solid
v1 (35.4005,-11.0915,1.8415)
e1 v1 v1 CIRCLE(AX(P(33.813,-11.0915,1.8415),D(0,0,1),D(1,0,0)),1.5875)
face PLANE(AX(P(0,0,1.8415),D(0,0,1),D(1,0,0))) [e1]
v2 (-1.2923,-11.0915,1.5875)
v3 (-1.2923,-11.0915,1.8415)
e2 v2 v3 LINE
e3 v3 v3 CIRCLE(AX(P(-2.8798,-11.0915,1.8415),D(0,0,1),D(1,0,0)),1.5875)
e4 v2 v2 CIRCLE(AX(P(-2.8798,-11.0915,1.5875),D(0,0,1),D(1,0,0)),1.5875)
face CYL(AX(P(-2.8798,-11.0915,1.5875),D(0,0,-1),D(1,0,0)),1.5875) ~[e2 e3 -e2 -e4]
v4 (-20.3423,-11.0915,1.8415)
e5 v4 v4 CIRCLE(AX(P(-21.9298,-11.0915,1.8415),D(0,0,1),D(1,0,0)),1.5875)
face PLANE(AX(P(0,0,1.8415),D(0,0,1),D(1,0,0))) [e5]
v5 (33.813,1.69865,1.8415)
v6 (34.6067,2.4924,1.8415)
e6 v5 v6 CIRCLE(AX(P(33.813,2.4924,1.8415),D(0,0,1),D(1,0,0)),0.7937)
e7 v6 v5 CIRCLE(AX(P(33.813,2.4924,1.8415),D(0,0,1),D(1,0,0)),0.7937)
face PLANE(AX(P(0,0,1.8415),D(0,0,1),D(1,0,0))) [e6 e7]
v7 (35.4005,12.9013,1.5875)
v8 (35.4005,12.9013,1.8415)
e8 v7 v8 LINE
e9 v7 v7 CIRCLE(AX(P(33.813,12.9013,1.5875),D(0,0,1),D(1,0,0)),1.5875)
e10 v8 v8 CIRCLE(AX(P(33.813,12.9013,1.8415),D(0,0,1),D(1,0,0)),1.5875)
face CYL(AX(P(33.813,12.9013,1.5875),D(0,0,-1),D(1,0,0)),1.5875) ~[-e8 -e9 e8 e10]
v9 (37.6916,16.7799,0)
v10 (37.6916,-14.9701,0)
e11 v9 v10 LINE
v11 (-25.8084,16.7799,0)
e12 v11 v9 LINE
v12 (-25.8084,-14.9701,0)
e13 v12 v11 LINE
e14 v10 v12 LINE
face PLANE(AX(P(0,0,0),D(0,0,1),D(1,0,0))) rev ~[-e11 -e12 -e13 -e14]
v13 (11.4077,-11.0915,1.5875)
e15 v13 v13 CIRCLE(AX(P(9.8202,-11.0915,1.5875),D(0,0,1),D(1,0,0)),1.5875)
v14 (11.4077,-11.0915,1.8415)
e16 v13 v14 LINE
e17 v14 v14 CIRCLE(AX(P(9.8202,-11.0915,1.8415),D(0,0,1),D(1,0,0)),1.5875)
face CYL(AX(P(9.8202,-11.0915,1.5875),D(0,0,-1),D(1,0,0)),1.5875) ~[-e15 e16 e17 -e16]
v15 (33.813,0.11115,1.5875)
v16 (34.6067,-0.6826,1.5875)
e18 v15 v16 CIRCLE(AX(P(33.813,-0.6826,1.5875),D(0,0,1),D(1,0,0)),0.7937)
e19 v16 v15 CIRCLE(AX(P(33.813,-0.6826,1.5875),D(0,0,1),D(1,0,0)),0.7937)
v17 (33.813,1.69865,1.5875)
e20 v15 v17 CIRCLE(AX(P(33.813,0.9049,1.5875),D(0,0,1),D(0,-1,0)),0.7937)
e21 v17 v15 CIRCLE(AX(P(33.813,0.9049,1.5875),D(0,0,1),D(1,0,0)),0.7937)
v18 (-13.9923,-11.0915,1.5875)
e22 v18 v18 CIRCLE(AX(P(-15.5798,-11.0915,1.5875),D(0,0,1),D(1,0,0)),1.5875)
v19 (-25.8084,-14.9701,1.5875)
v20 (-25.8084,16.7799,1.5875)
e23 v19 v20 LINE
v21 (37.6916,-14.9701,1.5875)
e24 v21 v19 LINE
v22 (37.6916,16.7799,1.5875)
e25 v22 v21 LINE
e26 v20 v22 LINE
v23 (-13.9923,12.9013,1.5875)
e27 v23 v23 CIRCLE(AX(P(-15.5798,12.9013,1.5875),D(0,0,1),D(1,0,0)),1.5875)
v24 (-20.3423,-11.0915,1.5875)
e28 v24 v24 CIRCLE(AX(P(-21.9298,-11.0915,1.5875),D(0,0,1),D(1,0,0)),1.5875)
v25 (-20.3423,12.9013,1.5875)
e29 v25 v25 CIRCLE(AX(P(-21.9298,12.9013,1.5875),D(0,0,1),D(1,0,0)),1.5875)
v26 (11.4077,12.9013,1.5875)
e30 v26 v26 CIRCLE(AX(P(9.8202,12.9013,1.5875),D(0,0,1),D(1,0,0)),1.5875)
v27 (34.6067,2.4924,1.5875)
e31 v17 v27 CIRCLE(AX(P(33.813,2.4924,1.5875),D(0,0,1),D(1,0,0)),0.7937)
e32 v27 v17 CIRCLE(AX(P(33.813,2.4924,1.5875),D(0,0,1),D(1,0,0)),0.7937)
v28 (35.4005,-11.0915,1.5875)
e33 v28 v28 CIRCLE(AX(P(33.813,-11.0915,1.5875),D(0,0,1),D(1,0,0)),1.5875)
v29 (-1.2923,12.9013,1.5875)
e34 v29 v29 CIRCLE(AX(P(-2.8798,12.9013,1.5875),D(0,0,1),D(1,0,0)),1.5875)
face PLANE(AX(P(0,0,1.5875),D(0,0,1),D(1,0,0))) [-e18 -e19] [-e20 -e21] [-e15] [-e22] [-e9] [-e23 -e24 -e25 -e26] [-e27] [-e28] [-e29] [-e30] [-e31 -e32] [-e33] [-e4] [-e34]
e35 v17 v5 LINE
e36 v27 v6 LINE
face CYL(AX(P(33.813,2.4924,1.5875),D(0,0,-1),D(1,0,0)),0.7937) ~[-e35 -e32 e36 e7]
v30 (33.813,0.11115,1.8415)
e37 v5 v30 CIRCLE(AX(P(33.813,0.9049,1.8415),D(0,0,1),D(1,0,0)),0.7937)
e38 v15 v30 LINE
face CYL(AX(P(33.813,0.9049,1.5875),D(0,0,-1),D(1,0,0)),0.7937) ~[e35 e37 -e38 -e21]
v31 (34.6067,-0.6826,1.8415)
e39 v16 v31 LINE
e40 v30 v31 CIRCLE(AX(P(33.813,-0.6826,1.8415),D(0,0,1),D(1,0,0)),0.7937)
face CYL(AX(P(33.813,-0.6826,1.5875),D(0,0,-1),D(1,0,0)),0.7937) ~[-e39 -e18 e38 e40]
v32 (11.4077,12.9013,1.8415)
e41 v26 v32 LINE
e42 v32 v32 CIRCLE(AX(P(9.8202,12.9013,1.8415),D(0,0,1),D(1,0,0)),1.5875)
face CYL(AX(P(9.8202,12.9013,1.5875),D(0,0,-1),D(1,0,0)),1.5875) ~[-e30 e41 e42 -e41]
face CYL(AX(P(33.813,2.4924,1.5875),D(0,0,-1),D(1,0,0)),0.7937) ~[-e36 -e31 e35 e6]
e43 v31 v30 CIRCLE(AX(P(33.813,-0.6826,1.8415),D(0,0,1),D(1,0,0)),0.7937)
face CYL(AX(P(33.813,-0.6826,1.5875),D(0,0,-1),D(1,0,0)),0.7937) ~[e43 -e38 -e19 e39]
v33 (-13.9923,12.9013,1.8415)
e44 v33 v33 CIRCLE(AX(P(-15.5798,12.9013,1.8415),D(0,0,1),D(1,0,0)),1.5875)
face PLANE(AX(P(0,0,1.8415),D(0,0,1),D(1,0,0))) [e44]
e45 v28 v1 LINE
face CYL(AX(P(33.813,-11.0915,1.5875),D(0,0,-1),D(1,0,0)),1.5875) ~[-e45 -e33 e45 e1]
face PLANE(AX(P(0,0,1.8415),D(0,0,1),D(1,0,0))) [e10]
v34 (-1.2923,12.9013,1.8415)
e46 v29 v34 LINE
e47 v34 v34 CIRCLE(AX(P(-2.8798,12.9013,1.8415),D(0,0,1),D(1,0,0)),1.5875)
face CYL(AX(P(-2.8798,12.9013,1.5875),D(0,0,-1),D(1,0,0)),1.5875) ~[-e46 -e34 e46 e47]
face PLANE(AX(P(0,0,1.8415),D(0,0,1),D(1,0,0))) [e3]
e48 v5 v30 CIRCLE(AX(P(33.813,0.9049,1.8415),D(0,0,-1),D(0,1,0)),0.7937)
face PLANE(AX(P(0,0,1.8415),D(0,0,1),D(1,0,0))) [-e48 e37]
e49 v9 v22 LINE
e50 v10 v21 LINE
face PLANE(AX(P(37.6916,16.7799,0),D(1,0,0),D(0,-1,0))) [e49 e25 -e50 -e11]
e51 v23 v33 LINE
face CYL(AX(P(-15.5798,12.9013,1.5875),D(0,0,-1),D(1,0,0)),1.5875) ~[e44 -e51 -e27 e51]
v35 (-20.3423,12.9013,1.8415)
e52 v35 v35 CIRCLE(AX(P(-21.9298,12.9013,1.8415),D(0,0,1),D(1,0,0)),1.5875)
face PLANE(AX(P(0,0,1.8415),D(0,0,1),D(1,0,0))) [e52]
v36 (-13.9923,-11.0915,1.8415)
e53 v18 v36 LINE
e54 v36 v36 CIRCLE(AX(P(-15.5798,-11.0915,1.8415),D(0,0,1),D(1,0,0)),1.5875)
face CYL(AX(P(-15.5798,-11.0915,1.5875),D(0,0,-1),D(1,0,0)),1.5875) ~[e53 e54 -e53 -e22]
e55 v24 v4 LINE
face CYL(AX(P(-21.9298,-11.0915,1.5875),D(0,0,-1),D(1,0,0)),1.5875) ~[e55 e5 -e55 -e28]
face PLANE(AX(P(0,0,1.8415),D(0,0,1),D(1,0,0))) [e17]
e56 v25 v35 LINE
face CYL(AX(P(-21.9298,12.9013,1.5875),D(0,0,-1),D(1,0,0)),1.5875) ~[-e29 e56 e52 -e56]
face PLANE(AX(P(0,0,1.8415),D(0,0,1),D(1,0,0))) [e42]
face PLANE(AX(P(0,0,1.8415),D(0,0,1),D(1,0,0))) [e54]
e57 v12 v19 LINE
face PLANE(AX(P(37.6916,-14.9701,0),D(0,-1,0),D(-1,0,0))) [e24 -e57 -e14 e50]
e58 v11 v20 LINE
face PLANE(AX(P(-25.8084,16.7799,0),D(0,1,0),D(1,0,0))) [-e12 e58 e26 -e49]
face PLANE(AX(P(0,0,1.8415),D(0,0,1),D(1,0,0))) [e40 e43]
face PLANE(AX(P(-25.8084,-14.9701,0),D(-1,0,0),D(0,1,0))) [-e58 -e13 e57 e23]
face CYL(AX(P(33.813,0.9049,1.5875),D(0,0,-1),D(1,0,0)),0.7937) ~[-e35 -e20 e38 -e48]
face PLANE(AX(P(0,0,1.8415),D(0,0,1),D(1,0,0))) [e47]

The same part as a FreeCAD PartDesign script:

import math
import FreeCAD as App
import Part
import Sketcher
Q = App.Units.Quantity


def add_polygon(sketch, points):
    """Adds a closed chain of lines whose ends are joined by coincident constraints."""
    first, n = sketch.GeometryCount, len(points)
    for a, b in zip(points, points[1:] + points[:1]):
        sketch.addGeometry(Part.LineSegment(App.Vector(*a, 0), App.Vector(*b, 0)), False)
    for i in range(n):
        sketch.addConstraint(Sketcher.Constraint("Coincident", first + i, 2, first + (i + 1) % n, 1))

doc = App.newDocument("Part")
body = doc.addObject("PartDesign::Body", "Body")

# Sketch on XY plane
sketch1 = body.newObject("Sketcher::SketchObject", "Sketch")
sketch1.AttachmentSupport = (doc.getObject("XY_Plane"), [""])
sketch1.MapMode = "FlatFace"
add_polygon(sketch1, [(38, 17), (-26, 17), (-26, -15), (38, -15)])  # lines 0-3
sketch1.addConstraint([
    Sketcher.Constraint("Horizontal", 0),
    Sketcher.Constraint("Vertical", 1),
    Sketcher.Constraint("Horizontal", 2),
    Sketcher.Constraint("Vertical", 3),
    Sketcher.Constraint("DistanceX", 0, 2, 0, 1, Q("2.5 in")),
    Sketcher.Constraint("DistanceY", 1, 2, 1, 1, Q("1.25 in")),
    Sketcher.Constraint("DistanceX", 0, 2, -1, 1, Q("25.8084 mm")),
    Sketcher.Constraint("DistanceY", -1, 1, 0, 2, Q("16.78 mm")),
])
pad1 = body.newObject("PartDesign::Pad", "Pad")
pad1.Profile = sketch1
pad1.Length = Q("0.0625 in")

# Sketch on XY plane
sketch2 = body.newObject("Sketcher::SketchObject", "Sketch001")
sketch2.AttachmentSupport = (doc.getObject("XY_Plane"), [""])
sketch2.MapMode = "FlatFace"
sketch2.AttachmentOffset = App.Placement(App.Vector(0, 0, 0.0625 * 25.4), App.Rotation())
sketch2.addGeometry([
    Part.Circle(App.Vector(33.8, 12.9, 0), App.Vector(0, 0, 1), 1.6),  # 0
    Part.Circle(App.Vector(33.8, -11.1, 0), App.Vector(0, 0, 1), 1.6),  # 1
    Part.Circle(App.Vector(33.8, 2.5, 0), App.Vector(0, 0, 1), 0.8),  # 2
    Part.Circle(App.Vector(33.8, -0.7, 0), App.Vector(0, 0, 1), 0.8),  # 3
    Part.ArcOfCircle(Part.Circle(App.Vector(33.8, 0.9, 0), App.Vector(0, 0, 1), 0.8), math.radians(-90), math.radians(90)),  # 4
    Part.ArcOfCircle(Part.Circle(App.Vector(33.8, 0.9, 0), App.Vector(0, 0, 1), 0.8), math.radians(90), math.radians(270)),  # 5
    Part.Circle(App.Vector(-21.9, 12.9, 0), App.Vector(0, 0, 1), 1.6),  # 6
    Part.Circle(App.Vector(-21.9, -11.1, 0), App.Vector(0, 0, 1), 1.6),  # 7
    Part.Circle(App.Vector(-15.6, 12.9, 0), App.Vector(0, 0, 1), 1.6),  # 8
    Part.Circle(App.Vector(-15.6, -11.1, 0), App.Vector(0, 0, 1), 1.6),  # 9
    Part.Circle(App.Vector(-2.9, 12.9, 0), App.Vector(0, 0, 1), 1.6),  # 10
    Part.Circle(App.Vector(-2.9, -11.1, 0), App.Vector(0, 0, 1), 1.6),  # 11
    Part.Circle(App.Vector(9.8, 12.9, 0), App.Vector(0, 0, 1), 1.6),  # 12
    Part.Circle(App.Vector(9.8, -11.1, 0), App.Vector(0, 0, 1), 1.6),  # 13
], False)
sketch2.addConstraint([
    Sketcher.Constraint("Tangent", 4, 1, 5, 2),
    Sketcher.Constraint("Coincident", 5, 1, 4, 2),
    Sketcher.Constraint("Equal", 0, 1),
    Sketcher.Constraint("Equal", 2, 3),
    Sketcher.Constraint("Equal", 3, 4),
    Sketcher.Constraint("Equal", 1, 6),
    Sketcher.Constraint("Equal", 6, 7),
    Sketcher.Constraint("Equal", 7, 8),
    Sketcher.Constraint("Equal", 8, 9),
    Sketcher.Constraint("Equal", 9, 10),
    Sketcher.Constraint("Equal", 10, 11),
    Sketcher.Constraint("Equal", 11, 12),
    Sketcher.Constraint("Equal", 12, 13),
    Sketcher.Constraint("Horizontal", 0, 3, 6, 3),
    Sketcher.Constraint("Horizontal", 1, 3, 7, 3),
    Sketcher.Constraint("Horizontal", 6, 3, 8, 3),
    Sketcher.Constraint("Horizontal", 7, 3, 9, 3),
    Sketcher.Constraint("Horizontal", 8, 3, 10, 3),
    Sketcher.Constraint("Horizontal", 9, 3, 11, 3),
    Sketcher.Constraint("Horizontal", 10, 3, 12, 3),
    Sketcher.Constraint("Horizontal", 11, 3, 13, 3),
    Sketcher.Constraint("Vertical", 0, 3, 1, 3),
    Sketcher.Constraint("Vertical", 1, 3, 2, 3),
    Sketcher.Constraint("Vertical", 2, 3, 3, 3),
    Sketcher.Constraint("Vertical", 3, 3, 4, 3),
    Sketcher.Constraint("Vertical", 6, 3, 7, 3),
    Sketcher.Constraint("Vertical", 8, 3, 9, 3),
    Sketcher.Constraint("Vertical", 10, 3, 11, 3),
    Sketcher.Constraint("Vertical", 12, 3, 13, 3),
    Sketcher.Constraint("Vertical", 5, 3, 4, 1),
    Sketcher.Constraint("Vertical", 4, 1, 5, 1),
    Sketcher.Constraint("Diameter", 0, Q("0.125 in")),
    Sketcher.Constraint("Diameter", 2, Q("0.0625 in")),
    Sketcher.Constraint("DistanceX", 8, 3, 12, 3, Q("1 in")),
    Sketcher.Constraint("DistanceX", 8, 3, 10, 3, Q("0.5 in")),
    Sketcher.Constraint("DistanceX", 6, 3, 8, 3, Q("0.25 in")),
    Sketcher.Constraint("DistanceY", 3, 3, 2, 3, Q("0.125 in")),
    Sketcher.Constraint("DistanceY", 4, 3, 2, 3, Q("0.0625 in")),
    Sketcher.Constraint("DistanceY", 1, 3, 0, 3, Q("0.9446 in")),
    Sketcher.Constraint("DistanceY", 2, 3, 0, 3, Q("0.4098 in")),
    Sketcher.Constraint("DistanceX", 6, 3, 0, 3, Q("2.1946 in")),
    Sketcher.Constraint("DistanceX", -1, 1, 0, 3, Q("33.813 mm")),
    Sketcher.Constraint("DistanceY", -1, 1, 0, 3, Q("12.9013 mm")),
])
pad2 = body.newObject("PartDesign::Pad", "Pad001")
pad2.Profile = sketch2
pad2.Length = Q("0.01 in")

doc.recompute()
